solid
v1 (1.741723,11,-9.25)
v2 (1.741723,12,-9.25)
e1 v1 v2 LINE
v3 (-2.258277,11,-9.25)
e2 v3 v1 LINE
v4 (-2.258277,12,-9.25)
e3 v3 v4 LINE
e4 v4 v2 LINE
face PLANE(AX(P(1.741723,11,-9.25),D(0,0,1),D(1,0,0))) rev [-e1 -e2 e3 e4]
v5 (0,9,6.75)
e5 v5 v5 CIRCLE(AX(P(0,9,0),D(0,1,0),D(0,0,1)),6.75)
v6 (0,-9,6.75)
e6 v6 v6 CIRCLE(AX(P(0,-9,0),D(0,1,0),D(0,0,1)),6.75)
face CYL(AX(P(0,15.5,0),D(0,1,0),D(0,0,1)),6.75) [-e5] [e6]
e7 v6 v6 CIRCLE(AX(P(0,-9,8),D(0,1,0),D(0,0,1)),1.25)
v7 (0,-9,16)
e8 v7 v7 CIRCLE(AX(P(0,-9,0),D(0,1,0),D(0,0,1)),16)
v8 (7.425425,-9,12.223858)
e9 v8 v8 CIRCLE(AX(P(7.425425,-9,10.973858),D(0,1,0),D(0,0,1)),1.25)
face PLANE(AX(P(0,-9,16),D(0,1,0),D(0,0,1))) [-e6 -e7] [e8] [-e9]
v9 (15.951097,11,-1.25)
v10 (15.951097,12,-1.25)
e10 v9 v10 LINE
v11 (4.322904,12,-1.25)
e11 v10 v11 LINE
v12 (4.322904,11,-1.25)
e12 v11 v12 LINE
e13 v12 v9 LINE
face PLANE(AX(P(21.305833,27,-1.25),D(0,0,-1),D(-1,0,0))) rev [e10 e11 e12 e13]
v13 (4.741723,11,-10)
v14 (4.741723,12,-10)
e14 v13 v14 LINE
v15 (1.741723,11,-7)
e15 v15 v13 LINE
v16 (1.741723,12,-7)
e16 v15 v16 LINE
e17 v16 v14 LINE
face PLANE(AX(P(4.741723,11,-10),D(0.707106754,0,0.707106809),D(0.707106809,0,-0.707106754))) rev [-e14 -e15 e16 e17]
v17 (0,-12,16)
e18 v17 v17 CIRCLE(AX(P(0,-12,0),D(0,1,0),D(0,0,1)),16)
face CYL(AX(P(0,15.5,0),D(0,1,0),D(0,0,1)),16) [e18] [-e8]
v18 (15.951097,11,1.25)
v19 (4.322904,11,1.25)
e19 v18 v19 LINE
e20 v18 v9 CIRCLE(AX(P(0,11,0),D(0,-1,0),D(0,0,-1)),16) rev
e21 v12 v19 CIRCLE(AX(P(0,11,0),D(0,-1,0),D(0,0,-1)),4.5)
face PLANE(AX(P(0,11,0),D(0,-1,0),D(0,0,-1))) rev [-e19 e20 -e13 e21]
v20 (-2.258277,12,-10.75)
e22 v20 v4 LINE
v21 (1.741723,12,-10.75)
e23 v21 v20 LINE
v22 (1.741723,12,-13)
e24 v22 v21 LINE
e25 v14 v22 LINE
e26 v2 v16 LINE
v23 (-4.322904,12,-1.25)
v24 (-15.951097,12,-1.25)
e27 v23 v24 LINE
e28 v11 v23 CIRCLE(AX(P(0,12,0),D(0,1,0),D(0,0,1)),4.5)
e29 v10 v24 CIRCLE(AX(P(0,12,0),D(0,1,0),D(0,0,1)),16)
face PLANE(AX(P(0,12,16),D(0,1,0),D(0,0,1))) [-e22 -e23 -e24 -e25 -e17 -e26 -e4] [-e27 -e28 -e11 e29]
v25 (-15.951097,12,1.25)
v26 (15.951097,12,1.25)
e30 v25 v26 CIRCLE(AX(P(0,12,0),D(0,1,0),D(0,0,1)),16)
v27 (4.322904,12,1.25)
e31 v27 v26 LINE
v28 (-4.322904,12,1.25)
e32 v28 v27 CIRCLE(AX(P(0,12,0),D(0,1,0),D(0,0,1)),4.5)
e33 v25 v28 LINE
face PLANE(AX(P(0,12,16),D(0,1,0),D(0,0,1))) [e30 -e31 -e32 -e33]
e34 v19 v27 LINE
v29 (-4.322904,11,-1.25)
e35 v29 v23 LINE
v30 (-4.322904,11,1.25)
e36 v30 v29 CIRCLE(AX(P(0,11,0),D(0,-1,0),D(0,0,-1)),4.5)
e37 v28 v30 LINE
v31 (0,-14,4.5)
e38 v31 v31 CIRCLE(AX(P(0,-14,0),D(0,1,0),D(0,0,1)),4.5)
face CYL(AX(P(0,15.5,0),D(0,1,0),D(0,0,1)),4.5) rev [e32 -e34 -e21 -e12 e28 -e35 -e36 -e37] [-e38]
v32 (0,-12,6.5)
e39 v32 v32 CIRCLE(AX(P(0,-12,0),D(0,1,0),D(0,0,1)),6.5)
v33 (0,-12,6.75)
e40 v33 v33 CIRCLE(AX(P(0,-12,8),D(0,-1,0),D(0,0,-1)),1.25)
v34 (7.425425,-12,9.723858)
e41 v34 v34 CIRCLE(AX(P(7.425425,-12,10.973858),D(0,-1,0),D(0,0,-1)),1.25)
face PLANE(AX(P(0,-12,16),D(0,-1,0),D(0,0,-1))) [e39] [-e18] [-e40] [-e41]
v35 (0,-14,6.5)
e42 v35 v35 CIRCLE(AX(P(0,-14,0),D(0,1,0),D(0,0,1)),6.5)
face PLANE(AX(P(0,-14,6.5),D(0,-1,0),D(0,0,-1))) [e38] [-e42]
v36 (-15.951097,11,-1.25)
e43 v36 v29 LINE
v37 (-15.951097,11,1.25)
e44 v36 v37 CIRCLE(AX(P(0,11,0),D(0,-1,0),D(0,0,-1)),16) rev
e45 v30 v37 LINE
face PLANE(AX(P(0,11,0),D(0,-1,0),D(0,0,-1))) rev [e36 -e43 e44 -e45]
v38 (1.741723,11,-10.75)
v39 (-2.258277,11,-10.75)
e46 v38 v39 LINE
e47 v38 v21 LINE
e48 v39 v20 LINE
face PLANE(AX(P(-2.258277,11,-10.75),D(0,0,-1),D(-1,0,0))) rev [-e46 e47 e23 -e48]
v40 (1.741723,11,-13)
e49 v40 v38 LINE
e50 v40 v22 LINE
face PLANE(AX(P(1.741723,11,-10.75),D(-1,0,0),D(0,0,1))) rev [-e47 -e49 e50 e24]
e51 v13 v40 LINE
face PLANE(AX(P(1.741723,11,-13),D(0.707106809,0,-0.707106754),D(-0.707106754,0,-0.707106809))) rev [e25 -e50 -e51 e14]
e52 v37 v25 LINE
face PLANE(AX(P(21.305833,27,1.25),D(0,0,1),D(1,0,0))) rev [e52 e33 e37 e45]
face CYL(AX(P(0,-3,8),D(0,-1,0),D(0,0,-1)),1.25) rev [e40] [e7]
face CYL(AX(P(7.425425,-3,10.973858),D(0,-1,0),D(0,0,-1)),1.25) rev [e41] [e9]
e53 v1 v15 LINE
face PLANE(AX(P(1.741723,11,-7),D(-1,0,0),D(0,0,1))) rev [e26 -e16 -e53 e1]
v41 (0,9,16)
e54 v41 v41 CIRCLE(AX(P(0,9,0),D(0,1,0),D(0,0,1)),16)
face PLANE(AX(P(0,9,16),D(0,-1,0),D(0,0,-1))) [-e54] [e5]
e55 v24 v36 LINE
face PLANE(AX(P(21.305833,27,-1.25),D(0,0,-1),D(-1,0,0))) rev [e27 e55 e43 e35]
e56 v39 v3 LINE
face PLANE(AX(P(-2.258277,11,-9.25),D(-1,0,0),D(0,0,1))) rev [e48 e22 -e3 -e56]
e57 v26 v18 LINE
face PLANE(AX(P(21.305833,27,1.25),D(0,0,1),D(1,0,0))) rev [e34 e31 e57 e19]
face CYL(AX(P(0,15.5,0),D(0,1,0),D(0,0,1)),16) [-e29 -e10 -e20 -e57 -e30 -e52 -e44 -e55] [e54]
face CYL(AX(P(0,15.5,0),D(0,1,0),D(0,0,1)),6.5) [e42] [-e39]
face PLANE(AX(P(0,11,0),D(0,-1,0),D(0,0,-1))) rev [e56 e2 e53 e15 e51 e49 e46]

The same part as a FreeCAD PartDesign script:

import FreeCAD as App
import Part
import Sketcher
from FreeCAD import Vector

doc = App.newDocument("Part")
body = doc.addObject("PartDesign::Body", "Body")

# Sketch on YZ plane
sketch1 = body.newObject("Sketcher::SketchObject", "Sketch")
sketch1.AttachmentSupport = (doc.getObject("YZ_Plane"), [""])
sketch1.MapMode = "FlatFace"
sketch1.addGeometry([
    Part.LineSegment(Vector(12, 16, 0), Vector(9, 16, 0)),  # 0
    Part.LineSegment(Vector(9, 16, 0), Vector(9, 6.8, 0)),  # 1
    Part.LineSegment(Vector(9, 6.8, 0), Vector(-9, 6.8, 0)),  # 2
    Part.LineSegment(Vector(-9, 6.8, 0), Vector(-9, 16, 0)),  # 3
    Part.LineSegment(Vector(-9, 16, 0), Vector(-12, 16, 0)),  # 4
    Part.LineSegment(Vector(-12, 16, 0), Vector(-12, 6.5, 0)),  # 5
    Part.LineSegment(Vector(-12, 6.5, 0), Vector(-14, 6.5, 0)),  # 6
    Part.LineSegment(Vector(-14, 6.5, 0), Vector(-14, 4.5, 0)),  # 7
    Part.LineSegment(Vector(-14, 4.5, 0), Vector(12, 4.5, 0)),  # 8
    Part.LineSegment(Vector(12, 4.5, 0), Vector(12, 16, 0)),  # 9
], False)
sketch1.addConstraint([
    Sketcher.Constraint("Coincident", 0, 2, 1, 1),
    Sketcher.Constraint("Coincident", 1, 2, 2, 1),
    Sketcher.Constraint("Coincident", 2, 2, 3, 1),
    Sketcher.Constraint("Coincident", 3, 2, 4, 1),
    Sketcher.Constraint("Coincident", 4, 2, 5, 1),
    Sketcher.Constraint("Coincident", 5, 2, 6, 1),
    Sketcher.Constraint("Coincident", 6, 2, 7, 1),
    Sketcher.Constraint("Coincident", 7, 2, 8, 1),
    Sketcher.Constraint("Coincident", 8, 2, 9, 1),
    Sketcher.Constraint("Coincident", 9, 2, 0, 1),
    Sketcher.Constraint("Horizontal", 0),
    Sketcher.Constraint("Vertical", 1),
    Sketcher.Constraint("Horizontal", 2),
    Sketcher.Constraint("Vertical", 3),
    Sketcher.Constraint("Horizontal", 4),
    Sketcher.Constraint("Vertical", 5),
    Sketcher.Constraint("Horizontal", 6),
    Sketcher.Constraint("Vertical", 7),
    Sketcher.Constraint("Horizontal", 8),
    Sketcher.Constraint("Vertical", 9),
    Sketcher.Constraint("Symmetric", 0, 2, 3, 2, -2),
    Sketcher.Constraint("Equal", 0, 4),
    Sketcher.Constraint("Equal", 6, 7),
    Sketcher.Constraint("DistanceX", 0, 2, 0, 1, 3.0),
    Sketcher.Constraint("DistanceX", 2, 2, 2, 1, 18.0),
    Sketcher.Constraint("DistanceX", 6, 2, 6, 1, 2.0),
    Sketcher.Constraint("DistanceY", 5, 2, 5, 1, 9.5),
    Sketcher.Constraint("DistanceY", -1, 1, 0, 2, 16.0),
    Sketcher.Constraint("DistanceY", 1, 2, 1, 1, 9.25),
])
revolution = body.newObject("PartDesign::Revolution", "Revolution")
revolution.Profile = sketch1
revolution.ReferenceAxis = (sketch1, ["H_Axis"])
revolution.Angle = 360

# Sketch on XZ plane
sketch2 = body.newObject("Sketcher::SketchObject", "Sketch001")
sketch2.AttachmentSupport = (doc.getObject("XZ_Plane"), [""])
sketch2.MapMode = "FlatFace"
sketch2.AttachmentOffset = App.Placement(Vector(0, 0, 12), App.Rotation())
sketch2.addGeometry([
    Part.Circle(Vector(0, 8, 0), Vector(0, 0, 1), 1.2),
    Part.Circle(Vector(7.4, 11, 0), Vector(0, 0, 1), 1.2),
], False)
sketch2.addConstraint([
    Sketcher.Constraint("Equal", 0, 1),
    Sketcher.Constraint("PointOnObject", 0, 3, -2),
    Sketcher.Constraint("Diameter", 0, 2.5),
    Sketcher.Constraint("DistanceY", -1, 1, 0, 3, 8.0),
    Sketcher.Constraint("DistanceY", -1, 1, 1, 3, 10.973858),
    Sketcher.Constraint("DistanceX", -1, 1, 1, 3, 7.425425),
])
pocket1 = body.newObject("PartDesign::Pocket", "Pocket")
pocket1.Profile = sketch2
pocket1.Length = 9

# Sketch on XZ plane
sketch3 = body.newObject("Sketcher::SketchObject", "Sketch002")
sketch3.AttachmentSupport = (doc.getObject("XZ_Plane"), [""])
sketch3.MapMode = "FlatFace"
sketch3.AttachmentOffset = App.Placement(Vector(0, 0, -12), App.Rotation())
sketch3.addGeometry([
    Part.LineSegment(Vector(1.7, -10.8, 0), Vector(-2.3, -10.8, 0)),  # 0
    Part.LineSegment(Vector(-2.3, -10.8, 0), Vector(-2.3, -9.2, 0)),  # 1
    Part.LineSegment(Vector(-2.3, -9.2, 0), Vector(1.7, -9.2, 0)),  # 2
    Part.LineSegment(Vector(1.7, -9.2, 0), Vector(1.7, -7, 0)),  # 3
    Part.LineSegment(Vector(1.7, -7, 0), Vector(4.7, -10, 0)),  # 4
    Part.LineSegment(Vector(4.7, -10, 0), Vector(1.7, -13, 0)),  # 5
    Part.LineSegment(Vector(1.7, -13, 0), Vector(1.7, -10.8, 0)),  # 6
], False)
sketch3.addConstraint([
    Sketcher.Constraint("Coincident", 0, 2, 1, 1),
    Sketcher.Constraint("Coincident", 1, 2, 2, 1),
    Sketcher.Constraint("Coincident", 2, 2, 3, 1),
    Sketcher.Constraint("Coincident", 3, 2, 4, 1),
    Sketcher.Constraint("Coincident", 4, 2, 5, 1),
    Sketcher.Constraint("Coincident", 5, 2, 6, 1),
    Sketcher.Constraint("Coincident", 6, 2, 0, 1),
    Sketcher.Constraint("Horizontal", 0),
    Sketcher.Constraint("Vertical", 1),
    Sketcher.Constraint("Horizontal", 2),
    Sketcher.Constraint("Vertical", 3),
    Sketcher.Constraint("Vertical", 6),
    Sketcher.Constraint("Perpendicular", 4, 5),
    Sketcher.Constraint("Vertical", 3, 2, 5, 2),
    Sketcher.Constraint("Equal", 3, 6),
    Sketcher.Constraint("Equal", 4, 5),
    Sketcher.Constraint("DistanceX", 0, 2, 0, 1, 4.0),
    Sketcher.Constraint("DistanceY", 1, 1, 1, 2, 1.5),
    Sketcher.Constraint("DistanceY", 3, 2, -1, 1, 7.0),
    Sketcher.Constraint("DistanceY", 4, 2, -1, 1, 10.0),
    Sketcher.Constraint("DistanceX", 0, 2, -1, 1, 2.258277),
])
pocket2 = body.newObject("PartDesign::Pocket", "Pocket001")
pocket2.Profile = sketch3
pocket2.Length = 1
pocket2.Reversed = True

# Sketch on XZ plane
sketch4 = body.newObject("Sketcher::SketchObject", "Sketch003")
sketch4.AttachmentSupport = (doc.getObject("XZ_Plane"), [""])
sketch4.MapMode = "FlatFace"
sketch4.AttachmentOffset = App.Placement(Vector(0, 0, -26), App.Rotation())
sketch4.addGeometry([
    Part.LineSegment(Vector(-21.3, 1.2, 0), Vector(-21.3, -1.2, 0)),
    Part.LineSegment(Vector(-21.3, -1.2, 0), Vector(21.3, -1.2, 0)),
    Part.LineSegment(Vector(21.3, -1.2, 0), Vector(21.3, 1.2, 0)),
    Part.LineSegment(Vector(21.3, 1.2, 0), Vector(-21.3, 1.2, 0)),
], False)
sketch4.addConstraint([
    Sketcher.Constraint("Coincident", 0, 2, 1, 1),
    Sketcher.Constraint("Coincident", 1, 2, 2, 1),
    Sketcher.Constraint("Coincident", 2, 2, 3, 1),
    Sketcher.Constraint("Coincident", 3, 2, 0, 1),
    Sketcher.Constraint("Vertical", 0),
    Sketcher.Constraint("Horizontal", 1),
    Sketcher.Constraint("Vertical", 2),
    Sketcher.Constraint("Horizontal", 3),
    Sketcher.Constraint("Symmetric", 0, 2, 2, 2, -1, 1),
    Sketcher.Constraint("DistanceY", 0, 2, 0, 1, 2.5),
    Sketcher.Constraint("DistanceX", 1, 1, 1, 2, 42.611665),
])
pocket3 = body.newObject("PartDesign::Pocket", "Pocket002")
pocket3.Profile = sketch4
pocket3.Type = "TwoLengths"
pocket3.Length = 15
pocket3.Length2 = 1
pocket3.Reversed = True

doc.recompute()
